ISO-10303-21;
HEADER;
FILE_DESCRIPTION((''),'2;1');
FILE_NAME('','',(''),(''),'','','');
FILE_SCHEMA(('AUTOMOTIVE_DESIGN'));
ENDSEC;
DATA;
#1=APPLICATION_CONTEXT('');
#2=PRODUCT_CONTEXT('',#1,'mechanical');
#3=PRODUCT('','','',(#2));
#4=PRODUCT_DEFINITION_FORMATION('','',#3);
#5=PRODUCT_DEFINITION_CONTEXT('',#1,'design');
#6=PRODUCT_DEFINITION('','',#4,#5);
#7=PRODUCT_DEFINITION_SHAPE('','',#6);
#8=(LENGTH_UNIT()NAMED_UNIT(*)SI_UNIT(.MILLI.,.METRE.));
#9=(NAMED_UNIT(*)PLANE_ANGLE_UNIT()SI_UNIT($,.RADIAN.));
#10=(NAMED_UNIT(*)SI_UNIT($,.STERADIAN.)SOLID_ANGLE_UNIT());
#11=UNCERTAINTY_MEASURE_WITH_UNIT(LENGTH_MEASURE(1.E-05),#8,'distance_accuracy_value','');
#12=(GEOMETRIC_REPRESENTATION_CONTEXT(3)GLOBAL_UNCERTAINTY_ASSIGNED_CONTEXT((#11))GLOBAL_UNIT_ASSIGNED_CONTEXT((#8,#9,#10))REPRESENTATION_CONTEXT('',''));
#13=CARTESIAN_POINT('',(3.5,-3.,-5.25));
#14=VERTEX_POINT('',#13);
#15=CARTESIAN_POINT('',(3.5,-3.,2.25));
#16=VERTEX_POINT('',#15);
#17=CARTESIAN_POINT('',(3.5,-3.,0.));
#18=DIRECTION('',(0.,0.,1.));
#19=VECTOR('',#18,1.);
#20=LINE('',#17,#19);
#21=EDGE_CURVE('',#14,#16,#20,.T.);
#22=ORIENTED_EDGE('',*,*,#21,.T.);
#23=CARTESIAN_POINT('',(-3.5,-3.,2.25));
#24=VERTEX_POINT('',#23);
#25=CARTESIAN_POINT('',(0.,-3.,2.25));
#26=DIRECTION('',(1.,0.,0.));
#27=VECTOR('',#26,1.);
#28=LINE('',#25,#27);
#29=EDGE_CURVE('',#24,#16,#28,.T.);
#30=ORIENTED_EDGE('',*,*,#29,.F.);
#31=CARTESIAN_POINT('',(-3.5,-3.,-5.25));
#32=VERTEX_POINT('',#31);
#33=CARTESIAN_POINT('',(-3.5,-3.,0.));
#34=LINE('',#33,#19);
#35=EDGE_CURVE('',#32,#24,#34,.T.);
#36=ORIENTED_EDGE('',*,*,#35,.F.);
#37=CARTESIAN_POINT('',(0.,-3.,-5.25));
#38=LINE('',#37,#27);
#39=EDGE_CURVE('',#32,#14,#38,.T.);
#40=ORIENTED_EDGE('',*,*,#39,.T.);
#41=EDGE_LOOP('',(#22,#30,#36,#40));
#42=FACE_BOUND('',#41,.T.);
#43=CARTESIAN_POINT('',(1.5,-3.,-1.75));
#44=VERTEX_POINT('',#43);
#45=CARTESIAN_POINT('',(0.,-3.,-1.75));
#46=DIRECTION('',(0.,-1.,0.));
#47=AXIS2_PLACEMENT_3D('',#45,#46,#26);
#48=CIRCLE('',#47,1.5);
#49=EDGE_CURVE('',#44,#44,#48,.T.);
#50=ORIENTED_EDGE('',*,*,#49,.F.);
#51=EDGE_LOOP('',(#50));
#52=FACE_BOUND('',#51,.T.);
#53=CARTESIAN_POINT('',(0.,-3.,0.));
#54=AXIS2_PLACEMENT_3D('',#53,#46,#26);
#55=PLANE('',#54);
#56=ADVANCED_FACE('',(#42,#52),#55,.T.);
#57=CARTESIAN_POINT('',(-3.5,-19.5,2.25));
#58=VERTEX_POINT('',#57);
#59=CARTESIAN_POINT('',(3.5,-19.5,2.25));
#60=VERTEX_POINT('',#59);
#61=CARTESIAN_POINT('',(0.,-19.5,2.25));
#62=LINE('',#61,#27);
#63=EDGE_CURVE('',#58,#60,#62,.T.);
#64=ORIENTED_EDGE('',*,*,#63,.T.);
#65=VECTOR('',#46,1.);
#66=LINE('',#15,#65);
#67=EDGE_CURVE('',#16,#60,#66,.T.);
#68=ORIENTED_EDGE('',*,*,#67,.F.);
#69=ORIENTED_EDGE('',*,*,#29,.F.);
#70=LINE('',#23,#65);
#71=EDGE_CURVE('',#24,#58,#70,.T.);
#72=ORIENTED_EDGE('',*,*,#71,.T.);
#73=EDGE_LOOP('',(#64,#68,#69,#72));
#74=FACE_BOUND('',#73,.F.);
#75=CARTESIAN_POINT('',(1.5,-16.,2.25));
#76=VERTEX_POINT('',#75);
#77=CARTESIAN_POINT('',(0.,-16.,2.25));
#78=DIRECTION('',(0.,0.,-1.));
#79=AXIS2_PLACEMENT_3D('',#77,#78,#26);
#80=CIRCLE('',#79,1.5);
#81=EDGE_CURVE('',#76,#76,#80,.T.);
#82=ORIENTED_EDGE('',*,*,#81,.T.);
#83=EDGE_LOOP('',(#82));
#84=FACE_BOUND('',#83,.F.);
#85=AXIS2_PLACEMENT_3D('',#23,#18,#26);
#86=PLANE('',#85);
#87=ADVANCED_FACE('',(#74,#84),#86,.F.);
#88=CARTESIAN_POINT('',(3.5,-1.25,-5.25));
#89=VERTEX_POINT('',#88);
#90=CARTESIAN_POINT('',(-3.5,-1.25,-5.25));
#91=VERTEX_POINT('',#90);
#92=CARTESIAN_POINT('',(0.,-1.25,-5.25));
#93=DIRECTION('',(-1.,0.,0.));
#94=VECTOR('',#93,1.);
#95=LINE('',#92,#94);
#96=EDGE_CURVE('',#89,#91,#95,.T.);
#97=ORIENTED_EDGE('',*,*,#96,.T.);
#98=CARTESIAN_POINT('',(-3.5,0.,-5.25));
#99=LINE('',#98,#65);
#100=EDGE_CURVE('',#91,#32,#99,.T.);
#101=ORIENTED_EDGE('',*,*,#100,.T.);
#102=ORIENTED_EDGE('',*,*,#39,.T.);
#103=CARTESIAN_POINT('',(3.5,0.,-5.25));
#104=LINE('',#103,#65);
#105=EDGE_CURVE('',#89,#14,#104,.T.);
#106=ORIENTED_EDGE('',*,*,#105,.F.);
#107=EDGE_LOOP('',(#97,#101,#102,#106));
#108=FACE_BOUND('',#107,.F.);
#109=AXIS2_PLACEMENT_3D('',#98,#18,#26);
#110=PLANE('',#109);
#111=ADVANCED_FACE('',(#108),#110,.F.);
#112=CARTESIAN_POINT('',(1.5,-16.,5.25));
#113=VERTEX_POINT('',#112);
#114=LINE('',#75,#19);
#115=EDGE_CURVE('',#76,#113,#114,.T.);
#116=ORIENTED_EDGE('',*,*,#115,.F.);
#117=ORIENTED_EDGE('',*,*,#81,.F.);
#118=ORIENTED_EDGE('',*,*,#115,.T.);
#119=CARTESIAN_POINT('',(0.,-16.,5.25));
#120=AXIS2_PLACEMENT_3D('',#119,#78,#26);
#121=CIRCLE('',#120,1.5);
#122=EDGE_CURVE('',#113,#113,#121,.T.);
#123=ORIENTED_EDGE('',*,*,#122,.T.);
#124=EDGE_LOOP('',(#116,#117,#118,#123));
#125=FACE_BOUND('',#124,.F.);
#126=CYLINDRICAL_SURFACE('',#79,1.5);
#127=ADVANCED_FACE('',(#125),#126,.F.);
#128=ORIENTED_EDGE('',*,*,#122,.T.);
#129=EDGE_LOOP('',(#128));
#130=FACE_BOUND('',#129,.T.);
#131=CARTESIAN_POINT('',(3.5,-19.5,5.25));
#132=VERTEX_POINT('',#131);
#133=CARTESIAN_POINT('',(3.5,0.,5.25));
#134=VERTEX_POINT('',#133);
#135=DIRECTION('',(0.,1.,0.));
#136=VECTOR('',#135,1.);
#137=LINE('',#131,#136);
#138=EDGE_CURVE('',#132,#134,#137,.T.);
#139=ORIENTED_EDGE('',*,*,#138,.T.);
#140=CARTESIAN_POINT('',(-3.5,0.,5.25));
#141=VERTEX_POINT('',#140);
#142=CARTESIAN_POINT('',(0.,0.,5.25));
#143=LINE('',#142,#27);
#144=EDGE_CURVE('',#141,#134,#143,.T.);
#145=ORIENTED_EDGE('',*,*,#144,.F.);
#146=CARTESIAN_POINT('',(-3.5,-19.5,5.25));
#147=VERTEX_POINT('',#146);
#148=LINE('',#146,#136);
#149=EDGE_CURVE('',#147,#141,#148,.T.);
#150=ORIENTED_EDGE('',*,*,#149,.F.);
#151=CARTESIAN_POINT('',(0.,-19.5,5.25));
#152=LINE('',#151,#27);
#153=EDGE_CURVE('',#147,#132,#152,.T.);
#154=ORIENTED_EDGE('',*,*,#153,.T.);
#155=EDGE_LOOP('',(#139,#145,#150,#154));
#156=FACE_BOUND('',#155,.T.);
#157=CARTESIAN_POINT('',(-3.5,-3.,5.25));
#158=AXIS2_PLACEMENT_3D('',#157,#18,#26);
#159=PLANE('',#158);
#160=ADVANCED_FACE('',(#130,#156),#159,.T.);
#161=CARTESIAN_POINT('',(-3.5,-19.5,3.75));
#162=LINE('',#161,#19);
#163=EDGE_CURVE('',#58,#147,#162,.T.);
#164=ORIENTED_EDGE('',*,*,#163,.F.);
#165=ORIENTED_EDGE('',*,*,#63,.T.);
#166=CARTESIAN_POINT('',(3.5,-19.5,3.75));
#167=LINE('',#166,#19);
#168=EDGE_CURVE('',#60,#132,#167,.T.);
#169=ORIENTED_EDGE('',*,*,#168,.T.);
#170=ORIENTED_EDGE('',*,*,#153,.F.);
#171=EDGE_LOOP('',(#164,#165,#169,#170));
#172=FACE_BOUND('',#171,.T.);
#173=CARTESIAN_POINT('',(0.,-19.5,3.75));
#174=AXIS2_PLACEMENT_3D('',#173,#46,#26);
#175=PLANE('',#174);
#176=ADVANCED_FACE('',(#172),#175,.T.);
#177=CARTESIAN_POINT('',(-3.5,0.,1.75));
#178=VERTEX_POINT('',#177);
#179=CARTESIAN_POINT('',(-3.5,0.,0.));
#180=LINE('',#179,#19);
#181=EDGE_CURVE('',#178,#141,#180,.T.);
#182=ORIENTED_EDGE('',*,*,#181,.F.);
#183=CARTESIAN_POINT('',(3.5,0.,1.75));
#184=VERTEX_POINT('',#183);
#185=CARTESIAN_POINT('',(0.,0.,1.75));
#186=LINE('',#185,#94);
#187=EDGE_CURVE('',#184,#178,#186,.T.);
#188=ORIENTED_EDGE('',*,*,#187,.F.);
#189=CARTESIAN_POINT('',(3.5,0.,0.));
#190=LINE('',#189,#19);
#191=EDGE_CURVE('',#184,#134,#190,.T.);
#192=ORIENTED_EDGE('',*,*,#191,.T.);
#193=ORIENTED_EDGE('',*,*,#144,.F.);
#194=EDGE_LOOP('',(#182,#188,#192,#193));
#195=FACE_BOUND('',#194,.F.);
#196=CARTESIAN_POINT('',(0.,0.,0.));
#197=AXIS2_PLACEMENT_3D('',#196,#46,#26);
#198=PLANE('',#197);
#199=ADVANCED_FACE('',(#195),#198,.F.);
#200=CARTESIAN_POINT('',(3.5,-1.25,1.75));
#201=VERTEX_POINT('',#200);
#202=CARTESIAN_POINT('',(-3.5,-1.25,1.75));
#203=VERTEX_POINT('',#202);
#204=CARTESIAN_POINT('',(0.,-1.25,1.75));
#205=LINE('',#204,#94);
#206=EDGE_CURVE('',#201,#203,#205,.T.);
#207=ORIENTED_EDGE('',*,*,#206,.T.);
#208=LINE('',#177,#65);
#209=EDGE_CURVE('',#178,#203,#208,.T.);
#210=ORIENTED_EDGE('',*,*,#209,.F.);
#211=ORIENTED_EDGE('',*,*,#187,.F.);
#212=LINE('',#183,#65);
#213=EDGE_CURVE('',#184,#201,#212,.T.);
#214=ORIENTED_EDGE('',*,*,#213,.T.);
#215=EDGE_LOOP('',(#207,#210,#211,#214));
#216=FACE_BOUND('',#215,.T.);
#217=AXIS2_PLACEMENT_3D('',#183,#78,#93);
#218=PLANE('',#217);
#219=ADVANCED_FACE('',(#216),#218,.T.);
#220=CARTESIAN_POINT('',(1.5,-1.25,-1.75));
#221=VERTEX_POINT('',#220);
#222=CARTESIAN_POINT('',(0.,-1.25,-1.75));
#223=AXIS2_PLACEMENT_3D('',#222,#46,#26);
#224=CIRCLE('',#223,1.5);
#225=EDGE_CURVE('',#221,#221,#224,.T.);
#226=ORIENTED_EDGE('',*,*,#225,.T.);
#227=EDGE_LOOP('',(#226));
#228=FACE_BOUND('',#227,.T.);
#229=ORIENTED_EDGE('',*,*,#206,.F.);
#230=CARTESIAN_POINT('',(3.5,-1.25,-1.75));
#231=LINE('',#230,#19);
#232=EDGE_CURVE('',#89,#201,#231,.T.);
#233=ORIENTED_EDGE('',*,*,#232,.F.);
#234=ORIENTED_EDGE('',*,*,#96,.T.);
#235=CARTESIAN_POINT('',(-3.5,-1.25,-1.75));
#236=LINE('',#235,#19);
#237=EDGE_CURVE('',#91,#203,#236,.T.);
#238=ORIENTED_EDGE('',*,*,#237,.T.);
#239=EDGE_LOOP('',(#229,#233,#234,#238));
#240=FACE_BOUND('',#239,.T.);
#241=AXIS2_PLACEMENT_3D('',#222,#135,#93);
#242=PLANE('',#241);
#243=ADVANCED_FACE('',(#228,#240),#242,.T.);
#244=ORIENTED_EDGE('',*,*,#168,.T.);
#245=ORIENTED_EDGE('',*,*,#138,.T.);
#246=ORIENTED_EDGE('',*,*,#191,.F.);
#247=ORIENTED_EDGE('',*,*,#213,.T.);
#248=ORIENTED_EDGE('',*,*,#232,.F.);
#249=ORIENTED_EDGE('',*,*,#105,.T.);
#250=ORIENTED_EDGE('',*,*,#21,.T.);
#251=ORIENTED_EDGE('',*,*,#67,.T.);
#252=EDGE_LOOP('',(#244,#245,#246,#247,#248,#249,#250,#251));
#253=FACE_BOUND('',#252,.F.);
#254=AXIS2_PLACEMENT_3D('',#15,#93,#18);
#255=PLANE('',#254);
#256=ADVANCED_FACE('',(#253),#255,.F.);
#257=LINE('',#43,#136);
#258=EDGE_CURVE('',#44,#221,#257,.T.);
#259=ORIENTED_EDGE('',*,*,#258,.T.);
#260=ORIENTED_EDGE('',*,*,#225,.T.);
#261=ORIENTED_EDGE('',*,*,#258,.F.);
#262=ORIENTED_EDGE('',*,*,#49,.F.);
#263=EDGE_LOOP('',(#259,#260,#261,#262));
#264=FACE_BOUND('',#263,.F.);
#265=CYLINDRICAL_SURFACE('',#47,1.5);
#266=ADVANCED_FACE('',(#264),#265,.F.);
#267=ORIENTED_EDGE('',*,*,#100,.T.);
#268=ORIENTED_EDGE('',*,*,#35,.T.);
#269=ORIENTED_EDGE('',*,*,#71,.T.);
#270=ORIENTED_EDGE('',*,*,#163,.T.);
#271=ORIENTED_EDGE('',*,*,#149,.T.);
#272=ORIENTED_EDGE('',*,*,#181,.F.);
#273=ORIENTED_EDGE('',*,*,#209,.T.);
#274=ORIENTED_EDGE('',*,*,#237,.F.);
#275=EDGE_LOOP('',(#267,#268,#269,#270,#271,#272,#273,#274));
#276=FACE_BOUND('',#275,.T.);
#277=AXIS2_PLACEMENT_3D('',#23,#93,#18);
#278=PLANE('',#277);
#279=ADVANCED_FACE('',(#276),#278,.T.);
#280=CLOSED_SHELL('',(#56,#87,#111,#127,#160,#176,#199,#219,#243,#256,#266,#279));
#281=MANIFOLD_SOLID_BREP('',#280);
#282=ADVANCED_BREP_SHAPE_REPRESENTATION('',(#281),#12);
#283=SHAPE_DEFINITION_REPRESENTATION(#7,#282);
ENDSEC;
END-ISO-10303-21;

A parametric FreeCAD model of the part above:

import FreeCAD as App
import Part
import Sketcher
from FreeCAD import Vector
Q = App.Units.Quantity


def add_polygon(sketch, points):
    """Adds a closed chain of lines whose ends are joined by coincident constraints."""
    first, n = sketch.GeometryCount, len(points)
    for a, b in zip(points, points[1:] + points[:1]):
        sketch.addGeometry(Part.LineSegment(App.Vector(*a, 0), App.Vector(*b, 0)), False)
    for i in range(n):
        sketch.addConstraint(Sketcher.Constraint("Coincident", first + i, 2, first + (i + 1) % n, 1))

doc = App.newDocument("Part")
body = doc.addObject("PartDesign::Body", "Body")

# Sketch on XZ plane
sketch1 = body.newObject("Sketcher::SketchObject", "Sketch")
sketch1.AttachmentSupport = (doc.getObject("XZ_Plane"), [""])
sketch1.MapMode = "FlatFace"
add_polygon(sketch1, [(-4, 5), (-4, -5), (4, -5), (4, 5)])  # lines 0-3
sketch1.addConstraint([
    Sketcher.Constraint("Vertical", 0),
    Sketcher.Constraint("Horizontal", 1),
    Sketcher.Constraint("Vertical", 2),
    Sketcher.Constraint("Horizontal", 3),
    Sketcher.Constraint("Symmetric", 0, 2, 2, 2, -1, 1),
    Sketcher.Constraint("DistanceX", 1, 1, 1, 2, Q("7 mm")),
    Sketcher.Constraint("DistanceY", 0, 2, 0, 1, Q("10.5 mm")),
])
pad1 = body.newObject("PartDesign::Pad", "Pad")
pad1.Profile = sketch1
pad1.Length = 3

# Sketch on XZ plane
sketch2 = body.newObject("Sketcher::SketchObject", "Sketch001")
sketch2.AttachmentSupport = (doc.getObject("XZ_Plane"), [""])
sketch2.MapMode = "FlatFace"
sketch2.AttachmentOffset = App.Placement(Vector(0, 0, 3), App.Rotation())
add_polygon(sketch2, [(-3.5, 5.2), (-3.5, 2.2), (3.5, 2.2), (3.5, 5.2)])  # lines 0-3
sketch2.addConstraint([
    Sketcher.Constraint("Vertical", 0),
    Sketcher.Constraint("Horizontal", 1),
    Sketcher.Constraint("Vertical", 2),
    Sketcher.Constraint("Horizontal", 3),
    Sketcher.Constraint("DistanceX", 1, 1, 1, 2, Q("7 mm")),
    Sketcher.Constraint("DistanceY", 0, 2, 0, 1, Q("3 mm")),
    Sketcher.Constraint("DistanceX", 0, 2, -1, 1, Q("3.5 mm")),
    Sketcher.Constraint("DistanceY", -1, 1, 0, 2, Q("2.25 mm")),
])
pad2 = body.newObject("PartDesign::Pad", "Pad001")
pad2.Profile = sketch2
pad2.Length = 16.5

# Sketch on XZ plane
sketch3 = body.newObject("Sketcher::SketchObject", "Sketch002")
sketch3.AttachmentSupport = (doc.getObject("XZ_Plane"), [""])
sketch3.MapMode = "FlatFace"
sketch3.AttachmentOffset = App.Placement(Vector(0, 0, 3), App.Rotation())
sketch3.addGeometry(Part.Circle(Vector(0, -1.8, 0), Vector(0, 0, 1), 1.5), False)
sketch3.addConstraint([
    Sketcher.Constraint("PointOnObject", 0, 3, -2),
    Sketcher.Constraint("Diameter", 0, Q("3 mm")),
    Sketcher.Constraint("DistanceY", 0, 3, -1, 1, Q("1.75 mm")),
])
pocket1 = body.newObject("PartDesign::Pocket", "Pocket")
pocket1.Profile = sketch3
pocket1.Length = 25

# Sketch on XY plane
sketch4 = body.newObject("Sketcher::SketchObject", "Sketch003")
sketch4.AttachmentSupport = (doc.getObject("XY_Plane"), [""])
sketch4.MapMode = "FlatFace"
sketch4.AttachmentOffset = App.Placement(Vector(0, 0, 2.25), App.Rotation())
sketch4.addGeometry(Part.Circle(Vector(0, -16, 0), Vector(0, 0, 1), 1.5), False)
sketch4.addConstraint([
    Sketcher.Constraint("PointOnObject", 0, 3, -2),
    Sketcher.Constraint("Diameter", 0, Q("3 mm")),
    Sketcher.Constraint("DistanceY", 0, 3, -1, 1, Q("16 mm")),
])
pocket2 = body.newObject("PartDesign::Pocket", "Pocket001")
pocket2.Profile = sketch4
pocket2.Length = 25
pocket2.Reversed = True

# Sketch on XZ plane
sketch5 = body.newObject("Sketcher::SketchObject", "Sketch004")
sketch5.AttachmentSupport = (doc.getObject("XZ_Plane"), [""])
sketch5.MapMode = "FlatFace"
add_polygon(sketch5, [(4, 2), (4, -5), (-4, -5), (-4, 2)])  # lines 0-3
sketch5.addConstraint([
    Sketcher.Constraint("Vertical", 0),
    Sketcher.Constraint("Horizontal", 1),
    Sketcher.Constraint("Vertical", 2),
    Sketcher.Constraint("Horizontal", 3),
    Sketcher.Constraint("Equal", 3, 0),
    Sketcher.Constraint("DistanceX", 1, 2, 1, 1, Q("7 mm")),
    Sketcher.Constraint("DistanceX", -1, 1, 0, 2, Q("3.5 mm")),
    Sketcher.Constraint("DistanceY", 0, 2, -1, 1, Q("5.25 mm")),
])
pocket3 = body.newObject("PartDesign::Pocket", "Pocket002")
pocket3.Profile = sketch5
pocket3.Length = 1.25
pocket3.Reversed = True

doc.recompute()
